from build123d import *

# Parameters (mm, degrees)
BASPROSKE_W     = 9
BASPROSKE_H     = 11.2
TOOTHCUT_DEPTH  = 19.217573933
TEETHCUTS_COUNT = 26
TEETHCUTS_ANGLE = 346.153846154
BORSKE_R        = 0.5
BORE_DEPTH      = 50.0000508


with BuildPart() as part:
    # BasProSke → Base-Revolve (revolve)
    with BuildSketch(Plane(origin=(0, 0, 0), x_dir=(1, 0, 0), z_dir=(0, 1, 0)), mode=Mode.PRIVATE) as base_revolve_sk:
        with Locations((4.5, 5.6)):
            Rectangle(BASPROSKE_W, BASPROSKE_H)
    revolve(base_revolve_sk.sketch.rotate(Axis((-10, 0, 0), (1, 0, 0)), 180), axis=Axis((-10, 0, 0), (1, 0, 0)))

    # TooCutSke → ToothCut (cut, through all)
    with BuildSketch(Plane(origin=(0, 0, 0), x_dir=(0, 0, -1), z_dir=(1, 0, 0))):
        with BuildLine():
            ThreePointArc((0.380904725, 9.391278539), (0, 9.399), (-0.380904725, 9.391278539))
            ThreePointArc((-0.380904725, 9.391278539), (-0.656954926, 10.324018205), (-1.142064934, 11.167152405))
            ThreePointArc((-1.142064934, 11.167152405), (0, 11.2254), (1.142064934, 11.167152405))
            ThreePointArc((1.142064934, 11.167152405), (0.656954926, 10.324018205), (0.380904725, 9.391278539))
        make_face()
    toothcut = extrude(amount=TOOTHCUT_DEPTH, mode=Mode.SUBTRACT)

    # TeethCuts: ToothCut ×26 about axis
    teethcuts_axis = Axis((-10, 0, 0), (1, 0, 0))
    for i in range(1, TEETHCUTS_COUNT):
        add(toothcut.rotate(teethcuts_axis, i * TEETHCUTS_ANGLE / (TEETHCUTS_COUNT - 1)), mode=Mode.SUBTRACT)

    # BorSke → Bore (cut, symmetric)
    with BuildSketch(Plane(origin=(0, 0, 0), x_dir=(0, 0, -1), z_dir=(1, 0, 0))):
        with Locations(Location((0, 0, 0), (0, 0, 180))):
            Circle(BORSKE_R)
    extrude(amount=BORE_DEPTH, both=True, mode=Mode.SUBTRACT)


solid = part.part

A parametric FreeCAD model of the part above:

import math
import FreeCAD as App
import Part
import Sketcher

V = App.Vector
Q = App.Units.Quantity

doc = App.newDocument("Part")
params = doc.addObject("Spreadsheet::Sheet", "Params")
for row, (alias, value) in enumerate([
    ("sketch1_width", "9 mm"),
    ("sketch1_height", "11.2 mm"),
    ("revolution_angle", "360 deg"),
    ("sketch2_radius", "4.16 mm"),
    ("sketch3_diameter", "1 mm"),
    ("pocket2_length", "100.000102 mm"),
], start=1):
    params.set(f"A{row}", alias)
    params.set(f"B{row}", "=" + value)
    params.setAlias(f"B{row}", alias)

body = doc.addObject("PartDesign::Body", "Body")

# Sketch on XZ plane
sketch1 = body.newObject("Sketcher::SketchObject", "Sketch")
sketch1.AttachmentSupport = (doc.getObject("XZ_Plane"), [""])
sketch1.MapMode = "FlatFace"
sketch1.addGeometry(Part.LineSegment(V(0, -11.2, 0), V(0, 0, 0)), False)
sketch1.addGeometry(Part.LineSegment(V(0, 0, 0), V(9, 0, 0)), False)
sketch1.addGeometry(Part.LineSegment(V(9, 0, 0), V(9, -11.2, 0)), False)
sketch1.addGeometry(Part.LineSegment(V(9, -11.2, 0), V(0, -11.2, 0)), False)
sketch1.addConstraint(Sketcher.Constraint("Coincident", 0, 2, 1, 1))
sketch1.addConstraint(Sketcher.Constraint("Coincident", 1, 2, 2, 1))
sketch1.addConstraint(Sketcher.Constraint("Coincident", 2, 2, 3, 1))
sketch1.addConstraint(Sketcher.Constraint("Coincident", 3, 2, 0, 1))
sketch1.addConstraint(Sketcher.Constraint("Vertical", 0))
sketch1.addConstraint(Sketcher.Constraint("Horizontal", 1))
sketch1.addConstraint(Sketcher.Constraint("Vertical", 2))
sketch1.addConstraint(Sketcher.Constraint("Horizontal", 3))
sketch1.addConstraint(Sketcher.Constraint("Coincident", 0, 2, -1, 1))
sketch1.addConstraint(Sketcher.Constraint("DistanceX", 1, 1, 1, 2, Q("9 mm")))
sketch1.addConstraint(Sketcher.Constraint("DistanceY", 0, 1, 0, 2, Q("11.2 mm")))
sketch1.setExpression("Constraints[9]", "Params.sketch1_width")
sketch1.setExpression("Constraints[10]", "Params.sketch1_height")
revolution = body.newObject("PartDesign::Revolution", "Revolution")
revolution.Profile = sketch1
revolution.ReferenceAxis = (sketch1, ["H_Axis"])
revolution.setExpression("Angle", "Params.revolution_angle")

# Sketch on YZ plane
sketch2 = body.newObject("Sketcher::SketchObject", "Sketch001")
sketch2.AttachmentSupport = (doc.getObject("YZ_Plane"), [""])
sketch2.MapMode = "FlatFace"
sketch2.addGeometry(Part.ArcOfCircle(Part.Circle(V(0, 0, 0), V(0, 0, 1), 9.399), math.radians(-2.32261), math.radians(2.32261)), False)
sketch2.addGeometry(Part.ArcOfCircle(Part.Circle(V(8.685184, -4.480543, 0), V(0, 0, 1), 4.16), math.radians(53.371295), math.radians(80.227631)), False)
sketch2.addGeometry(Part.ArcOfCircle(Part.Circle(V(0, 0, 0), V(0, 0, 1), 11.2254), math.radians(-5.839339), math.radians(5.839339)), False)
sketch2.addGeometry(Part.ArcOfCircle(Part.Circle(V(8.685184, 4.480543, 0), V(0, 0, 1), 4.16), math.radians(-80.227631), math.radians(-53.371295)), False)
sketch2.addConstraint(Sketcher.Constraint("Coincident", 0, 1, 1, 2))
sketch2.addConstraint(Sketcher.Constraint("Coincident", 1, 1, 2, 1))
sketch2.addConstraint(Sketcher.Constraint("Coincident", 2, 2, 3, 2))
sketch2.addConstraint(Sketcher.Constraint("Coincident", 3, 1, 0, 2))
sketch2.addConstraint(Sketcher.Constraint("Coincident", 0, 3, -1, 1))
sketch2.addConstraint(Sketcher.Constraint("Coincident", 2, 3, -1, 1))
sketch2.addConstraint(Sketcher.Constraint("Equal", 1, 3))
sketch2.addConstraint(Sketcher.Constraint("Symmetric", 1, 3, 3, 3, -1))
sketch2.addConstraint(Sketcher.Constraint("Radius", 1, Q("4.16 mm")))
sketch2.addConstraint(Sketcher.Constraint("Radius", 0, Q("9.399 mm")))
sketch2.addConstraint(Sketcher.Constraint("Radius", 2, Q("11.2254 mm")))
sketch2.addConstraint(Sketcher.Constraint("DistanceX", -1, 1, 0, 1, Q("9.391279 mm")))
sketch2.addConstraint(Sketcher.Constraint("DistanceY", 1, 1, 0, 1, Q("0.76116 mm")))
sketch2.setExpression("Constraints[8]", "Params.sketch2_radius")
pocket1 = body.newObject("PartDesign::Pocket", "Pocket")
pocket1.Profile = sketch2
pocket1.Type = "ThroughAll"
pocket1.Reversed = True
doc.recompute()

polarpattern = body.newObject("PartDesign::PolarPattern", "PolarPattern")
polarpattern.Originals = [pocket1]
polarpattern.Axis = (doc.getObject("X_Axis"), [""])
polarpattern.Angle = 360
polarpattern.Occurrences = 26
body.Tip = polarpattern

# Sketch on YZ plane
sketch3 = body.newObject("Sketcher::SketchObject", "Sketch002")
sketch3.AttachmentSupport = (doc.getObject("YZ_Plane"), [""])
sketch3.MapMode = "FlatFace"
sketch3.addGeometry(Part.Circle(V(0, 0, 0), V(0, 0, 1), 0.5), False)
sketch3.addConstraint(Sketcher.Constraint("Coincident", 0, 3, -1, 1))
sketch3.addConstraint(Sketcher.Constraint("Diameter", 0, Q("1 mm")))
sketch3.setExpression("Constraints[1]", "Params.sketch3_diameter")
pocket2 = body.newObject("PartDesign::Pocket", "Pocket001")
pocket2.Profile = sketch3
pocket2.setExpression("Length", "Params.pocket2_length")
pocket2.Midplane = True

doc.recompute()
